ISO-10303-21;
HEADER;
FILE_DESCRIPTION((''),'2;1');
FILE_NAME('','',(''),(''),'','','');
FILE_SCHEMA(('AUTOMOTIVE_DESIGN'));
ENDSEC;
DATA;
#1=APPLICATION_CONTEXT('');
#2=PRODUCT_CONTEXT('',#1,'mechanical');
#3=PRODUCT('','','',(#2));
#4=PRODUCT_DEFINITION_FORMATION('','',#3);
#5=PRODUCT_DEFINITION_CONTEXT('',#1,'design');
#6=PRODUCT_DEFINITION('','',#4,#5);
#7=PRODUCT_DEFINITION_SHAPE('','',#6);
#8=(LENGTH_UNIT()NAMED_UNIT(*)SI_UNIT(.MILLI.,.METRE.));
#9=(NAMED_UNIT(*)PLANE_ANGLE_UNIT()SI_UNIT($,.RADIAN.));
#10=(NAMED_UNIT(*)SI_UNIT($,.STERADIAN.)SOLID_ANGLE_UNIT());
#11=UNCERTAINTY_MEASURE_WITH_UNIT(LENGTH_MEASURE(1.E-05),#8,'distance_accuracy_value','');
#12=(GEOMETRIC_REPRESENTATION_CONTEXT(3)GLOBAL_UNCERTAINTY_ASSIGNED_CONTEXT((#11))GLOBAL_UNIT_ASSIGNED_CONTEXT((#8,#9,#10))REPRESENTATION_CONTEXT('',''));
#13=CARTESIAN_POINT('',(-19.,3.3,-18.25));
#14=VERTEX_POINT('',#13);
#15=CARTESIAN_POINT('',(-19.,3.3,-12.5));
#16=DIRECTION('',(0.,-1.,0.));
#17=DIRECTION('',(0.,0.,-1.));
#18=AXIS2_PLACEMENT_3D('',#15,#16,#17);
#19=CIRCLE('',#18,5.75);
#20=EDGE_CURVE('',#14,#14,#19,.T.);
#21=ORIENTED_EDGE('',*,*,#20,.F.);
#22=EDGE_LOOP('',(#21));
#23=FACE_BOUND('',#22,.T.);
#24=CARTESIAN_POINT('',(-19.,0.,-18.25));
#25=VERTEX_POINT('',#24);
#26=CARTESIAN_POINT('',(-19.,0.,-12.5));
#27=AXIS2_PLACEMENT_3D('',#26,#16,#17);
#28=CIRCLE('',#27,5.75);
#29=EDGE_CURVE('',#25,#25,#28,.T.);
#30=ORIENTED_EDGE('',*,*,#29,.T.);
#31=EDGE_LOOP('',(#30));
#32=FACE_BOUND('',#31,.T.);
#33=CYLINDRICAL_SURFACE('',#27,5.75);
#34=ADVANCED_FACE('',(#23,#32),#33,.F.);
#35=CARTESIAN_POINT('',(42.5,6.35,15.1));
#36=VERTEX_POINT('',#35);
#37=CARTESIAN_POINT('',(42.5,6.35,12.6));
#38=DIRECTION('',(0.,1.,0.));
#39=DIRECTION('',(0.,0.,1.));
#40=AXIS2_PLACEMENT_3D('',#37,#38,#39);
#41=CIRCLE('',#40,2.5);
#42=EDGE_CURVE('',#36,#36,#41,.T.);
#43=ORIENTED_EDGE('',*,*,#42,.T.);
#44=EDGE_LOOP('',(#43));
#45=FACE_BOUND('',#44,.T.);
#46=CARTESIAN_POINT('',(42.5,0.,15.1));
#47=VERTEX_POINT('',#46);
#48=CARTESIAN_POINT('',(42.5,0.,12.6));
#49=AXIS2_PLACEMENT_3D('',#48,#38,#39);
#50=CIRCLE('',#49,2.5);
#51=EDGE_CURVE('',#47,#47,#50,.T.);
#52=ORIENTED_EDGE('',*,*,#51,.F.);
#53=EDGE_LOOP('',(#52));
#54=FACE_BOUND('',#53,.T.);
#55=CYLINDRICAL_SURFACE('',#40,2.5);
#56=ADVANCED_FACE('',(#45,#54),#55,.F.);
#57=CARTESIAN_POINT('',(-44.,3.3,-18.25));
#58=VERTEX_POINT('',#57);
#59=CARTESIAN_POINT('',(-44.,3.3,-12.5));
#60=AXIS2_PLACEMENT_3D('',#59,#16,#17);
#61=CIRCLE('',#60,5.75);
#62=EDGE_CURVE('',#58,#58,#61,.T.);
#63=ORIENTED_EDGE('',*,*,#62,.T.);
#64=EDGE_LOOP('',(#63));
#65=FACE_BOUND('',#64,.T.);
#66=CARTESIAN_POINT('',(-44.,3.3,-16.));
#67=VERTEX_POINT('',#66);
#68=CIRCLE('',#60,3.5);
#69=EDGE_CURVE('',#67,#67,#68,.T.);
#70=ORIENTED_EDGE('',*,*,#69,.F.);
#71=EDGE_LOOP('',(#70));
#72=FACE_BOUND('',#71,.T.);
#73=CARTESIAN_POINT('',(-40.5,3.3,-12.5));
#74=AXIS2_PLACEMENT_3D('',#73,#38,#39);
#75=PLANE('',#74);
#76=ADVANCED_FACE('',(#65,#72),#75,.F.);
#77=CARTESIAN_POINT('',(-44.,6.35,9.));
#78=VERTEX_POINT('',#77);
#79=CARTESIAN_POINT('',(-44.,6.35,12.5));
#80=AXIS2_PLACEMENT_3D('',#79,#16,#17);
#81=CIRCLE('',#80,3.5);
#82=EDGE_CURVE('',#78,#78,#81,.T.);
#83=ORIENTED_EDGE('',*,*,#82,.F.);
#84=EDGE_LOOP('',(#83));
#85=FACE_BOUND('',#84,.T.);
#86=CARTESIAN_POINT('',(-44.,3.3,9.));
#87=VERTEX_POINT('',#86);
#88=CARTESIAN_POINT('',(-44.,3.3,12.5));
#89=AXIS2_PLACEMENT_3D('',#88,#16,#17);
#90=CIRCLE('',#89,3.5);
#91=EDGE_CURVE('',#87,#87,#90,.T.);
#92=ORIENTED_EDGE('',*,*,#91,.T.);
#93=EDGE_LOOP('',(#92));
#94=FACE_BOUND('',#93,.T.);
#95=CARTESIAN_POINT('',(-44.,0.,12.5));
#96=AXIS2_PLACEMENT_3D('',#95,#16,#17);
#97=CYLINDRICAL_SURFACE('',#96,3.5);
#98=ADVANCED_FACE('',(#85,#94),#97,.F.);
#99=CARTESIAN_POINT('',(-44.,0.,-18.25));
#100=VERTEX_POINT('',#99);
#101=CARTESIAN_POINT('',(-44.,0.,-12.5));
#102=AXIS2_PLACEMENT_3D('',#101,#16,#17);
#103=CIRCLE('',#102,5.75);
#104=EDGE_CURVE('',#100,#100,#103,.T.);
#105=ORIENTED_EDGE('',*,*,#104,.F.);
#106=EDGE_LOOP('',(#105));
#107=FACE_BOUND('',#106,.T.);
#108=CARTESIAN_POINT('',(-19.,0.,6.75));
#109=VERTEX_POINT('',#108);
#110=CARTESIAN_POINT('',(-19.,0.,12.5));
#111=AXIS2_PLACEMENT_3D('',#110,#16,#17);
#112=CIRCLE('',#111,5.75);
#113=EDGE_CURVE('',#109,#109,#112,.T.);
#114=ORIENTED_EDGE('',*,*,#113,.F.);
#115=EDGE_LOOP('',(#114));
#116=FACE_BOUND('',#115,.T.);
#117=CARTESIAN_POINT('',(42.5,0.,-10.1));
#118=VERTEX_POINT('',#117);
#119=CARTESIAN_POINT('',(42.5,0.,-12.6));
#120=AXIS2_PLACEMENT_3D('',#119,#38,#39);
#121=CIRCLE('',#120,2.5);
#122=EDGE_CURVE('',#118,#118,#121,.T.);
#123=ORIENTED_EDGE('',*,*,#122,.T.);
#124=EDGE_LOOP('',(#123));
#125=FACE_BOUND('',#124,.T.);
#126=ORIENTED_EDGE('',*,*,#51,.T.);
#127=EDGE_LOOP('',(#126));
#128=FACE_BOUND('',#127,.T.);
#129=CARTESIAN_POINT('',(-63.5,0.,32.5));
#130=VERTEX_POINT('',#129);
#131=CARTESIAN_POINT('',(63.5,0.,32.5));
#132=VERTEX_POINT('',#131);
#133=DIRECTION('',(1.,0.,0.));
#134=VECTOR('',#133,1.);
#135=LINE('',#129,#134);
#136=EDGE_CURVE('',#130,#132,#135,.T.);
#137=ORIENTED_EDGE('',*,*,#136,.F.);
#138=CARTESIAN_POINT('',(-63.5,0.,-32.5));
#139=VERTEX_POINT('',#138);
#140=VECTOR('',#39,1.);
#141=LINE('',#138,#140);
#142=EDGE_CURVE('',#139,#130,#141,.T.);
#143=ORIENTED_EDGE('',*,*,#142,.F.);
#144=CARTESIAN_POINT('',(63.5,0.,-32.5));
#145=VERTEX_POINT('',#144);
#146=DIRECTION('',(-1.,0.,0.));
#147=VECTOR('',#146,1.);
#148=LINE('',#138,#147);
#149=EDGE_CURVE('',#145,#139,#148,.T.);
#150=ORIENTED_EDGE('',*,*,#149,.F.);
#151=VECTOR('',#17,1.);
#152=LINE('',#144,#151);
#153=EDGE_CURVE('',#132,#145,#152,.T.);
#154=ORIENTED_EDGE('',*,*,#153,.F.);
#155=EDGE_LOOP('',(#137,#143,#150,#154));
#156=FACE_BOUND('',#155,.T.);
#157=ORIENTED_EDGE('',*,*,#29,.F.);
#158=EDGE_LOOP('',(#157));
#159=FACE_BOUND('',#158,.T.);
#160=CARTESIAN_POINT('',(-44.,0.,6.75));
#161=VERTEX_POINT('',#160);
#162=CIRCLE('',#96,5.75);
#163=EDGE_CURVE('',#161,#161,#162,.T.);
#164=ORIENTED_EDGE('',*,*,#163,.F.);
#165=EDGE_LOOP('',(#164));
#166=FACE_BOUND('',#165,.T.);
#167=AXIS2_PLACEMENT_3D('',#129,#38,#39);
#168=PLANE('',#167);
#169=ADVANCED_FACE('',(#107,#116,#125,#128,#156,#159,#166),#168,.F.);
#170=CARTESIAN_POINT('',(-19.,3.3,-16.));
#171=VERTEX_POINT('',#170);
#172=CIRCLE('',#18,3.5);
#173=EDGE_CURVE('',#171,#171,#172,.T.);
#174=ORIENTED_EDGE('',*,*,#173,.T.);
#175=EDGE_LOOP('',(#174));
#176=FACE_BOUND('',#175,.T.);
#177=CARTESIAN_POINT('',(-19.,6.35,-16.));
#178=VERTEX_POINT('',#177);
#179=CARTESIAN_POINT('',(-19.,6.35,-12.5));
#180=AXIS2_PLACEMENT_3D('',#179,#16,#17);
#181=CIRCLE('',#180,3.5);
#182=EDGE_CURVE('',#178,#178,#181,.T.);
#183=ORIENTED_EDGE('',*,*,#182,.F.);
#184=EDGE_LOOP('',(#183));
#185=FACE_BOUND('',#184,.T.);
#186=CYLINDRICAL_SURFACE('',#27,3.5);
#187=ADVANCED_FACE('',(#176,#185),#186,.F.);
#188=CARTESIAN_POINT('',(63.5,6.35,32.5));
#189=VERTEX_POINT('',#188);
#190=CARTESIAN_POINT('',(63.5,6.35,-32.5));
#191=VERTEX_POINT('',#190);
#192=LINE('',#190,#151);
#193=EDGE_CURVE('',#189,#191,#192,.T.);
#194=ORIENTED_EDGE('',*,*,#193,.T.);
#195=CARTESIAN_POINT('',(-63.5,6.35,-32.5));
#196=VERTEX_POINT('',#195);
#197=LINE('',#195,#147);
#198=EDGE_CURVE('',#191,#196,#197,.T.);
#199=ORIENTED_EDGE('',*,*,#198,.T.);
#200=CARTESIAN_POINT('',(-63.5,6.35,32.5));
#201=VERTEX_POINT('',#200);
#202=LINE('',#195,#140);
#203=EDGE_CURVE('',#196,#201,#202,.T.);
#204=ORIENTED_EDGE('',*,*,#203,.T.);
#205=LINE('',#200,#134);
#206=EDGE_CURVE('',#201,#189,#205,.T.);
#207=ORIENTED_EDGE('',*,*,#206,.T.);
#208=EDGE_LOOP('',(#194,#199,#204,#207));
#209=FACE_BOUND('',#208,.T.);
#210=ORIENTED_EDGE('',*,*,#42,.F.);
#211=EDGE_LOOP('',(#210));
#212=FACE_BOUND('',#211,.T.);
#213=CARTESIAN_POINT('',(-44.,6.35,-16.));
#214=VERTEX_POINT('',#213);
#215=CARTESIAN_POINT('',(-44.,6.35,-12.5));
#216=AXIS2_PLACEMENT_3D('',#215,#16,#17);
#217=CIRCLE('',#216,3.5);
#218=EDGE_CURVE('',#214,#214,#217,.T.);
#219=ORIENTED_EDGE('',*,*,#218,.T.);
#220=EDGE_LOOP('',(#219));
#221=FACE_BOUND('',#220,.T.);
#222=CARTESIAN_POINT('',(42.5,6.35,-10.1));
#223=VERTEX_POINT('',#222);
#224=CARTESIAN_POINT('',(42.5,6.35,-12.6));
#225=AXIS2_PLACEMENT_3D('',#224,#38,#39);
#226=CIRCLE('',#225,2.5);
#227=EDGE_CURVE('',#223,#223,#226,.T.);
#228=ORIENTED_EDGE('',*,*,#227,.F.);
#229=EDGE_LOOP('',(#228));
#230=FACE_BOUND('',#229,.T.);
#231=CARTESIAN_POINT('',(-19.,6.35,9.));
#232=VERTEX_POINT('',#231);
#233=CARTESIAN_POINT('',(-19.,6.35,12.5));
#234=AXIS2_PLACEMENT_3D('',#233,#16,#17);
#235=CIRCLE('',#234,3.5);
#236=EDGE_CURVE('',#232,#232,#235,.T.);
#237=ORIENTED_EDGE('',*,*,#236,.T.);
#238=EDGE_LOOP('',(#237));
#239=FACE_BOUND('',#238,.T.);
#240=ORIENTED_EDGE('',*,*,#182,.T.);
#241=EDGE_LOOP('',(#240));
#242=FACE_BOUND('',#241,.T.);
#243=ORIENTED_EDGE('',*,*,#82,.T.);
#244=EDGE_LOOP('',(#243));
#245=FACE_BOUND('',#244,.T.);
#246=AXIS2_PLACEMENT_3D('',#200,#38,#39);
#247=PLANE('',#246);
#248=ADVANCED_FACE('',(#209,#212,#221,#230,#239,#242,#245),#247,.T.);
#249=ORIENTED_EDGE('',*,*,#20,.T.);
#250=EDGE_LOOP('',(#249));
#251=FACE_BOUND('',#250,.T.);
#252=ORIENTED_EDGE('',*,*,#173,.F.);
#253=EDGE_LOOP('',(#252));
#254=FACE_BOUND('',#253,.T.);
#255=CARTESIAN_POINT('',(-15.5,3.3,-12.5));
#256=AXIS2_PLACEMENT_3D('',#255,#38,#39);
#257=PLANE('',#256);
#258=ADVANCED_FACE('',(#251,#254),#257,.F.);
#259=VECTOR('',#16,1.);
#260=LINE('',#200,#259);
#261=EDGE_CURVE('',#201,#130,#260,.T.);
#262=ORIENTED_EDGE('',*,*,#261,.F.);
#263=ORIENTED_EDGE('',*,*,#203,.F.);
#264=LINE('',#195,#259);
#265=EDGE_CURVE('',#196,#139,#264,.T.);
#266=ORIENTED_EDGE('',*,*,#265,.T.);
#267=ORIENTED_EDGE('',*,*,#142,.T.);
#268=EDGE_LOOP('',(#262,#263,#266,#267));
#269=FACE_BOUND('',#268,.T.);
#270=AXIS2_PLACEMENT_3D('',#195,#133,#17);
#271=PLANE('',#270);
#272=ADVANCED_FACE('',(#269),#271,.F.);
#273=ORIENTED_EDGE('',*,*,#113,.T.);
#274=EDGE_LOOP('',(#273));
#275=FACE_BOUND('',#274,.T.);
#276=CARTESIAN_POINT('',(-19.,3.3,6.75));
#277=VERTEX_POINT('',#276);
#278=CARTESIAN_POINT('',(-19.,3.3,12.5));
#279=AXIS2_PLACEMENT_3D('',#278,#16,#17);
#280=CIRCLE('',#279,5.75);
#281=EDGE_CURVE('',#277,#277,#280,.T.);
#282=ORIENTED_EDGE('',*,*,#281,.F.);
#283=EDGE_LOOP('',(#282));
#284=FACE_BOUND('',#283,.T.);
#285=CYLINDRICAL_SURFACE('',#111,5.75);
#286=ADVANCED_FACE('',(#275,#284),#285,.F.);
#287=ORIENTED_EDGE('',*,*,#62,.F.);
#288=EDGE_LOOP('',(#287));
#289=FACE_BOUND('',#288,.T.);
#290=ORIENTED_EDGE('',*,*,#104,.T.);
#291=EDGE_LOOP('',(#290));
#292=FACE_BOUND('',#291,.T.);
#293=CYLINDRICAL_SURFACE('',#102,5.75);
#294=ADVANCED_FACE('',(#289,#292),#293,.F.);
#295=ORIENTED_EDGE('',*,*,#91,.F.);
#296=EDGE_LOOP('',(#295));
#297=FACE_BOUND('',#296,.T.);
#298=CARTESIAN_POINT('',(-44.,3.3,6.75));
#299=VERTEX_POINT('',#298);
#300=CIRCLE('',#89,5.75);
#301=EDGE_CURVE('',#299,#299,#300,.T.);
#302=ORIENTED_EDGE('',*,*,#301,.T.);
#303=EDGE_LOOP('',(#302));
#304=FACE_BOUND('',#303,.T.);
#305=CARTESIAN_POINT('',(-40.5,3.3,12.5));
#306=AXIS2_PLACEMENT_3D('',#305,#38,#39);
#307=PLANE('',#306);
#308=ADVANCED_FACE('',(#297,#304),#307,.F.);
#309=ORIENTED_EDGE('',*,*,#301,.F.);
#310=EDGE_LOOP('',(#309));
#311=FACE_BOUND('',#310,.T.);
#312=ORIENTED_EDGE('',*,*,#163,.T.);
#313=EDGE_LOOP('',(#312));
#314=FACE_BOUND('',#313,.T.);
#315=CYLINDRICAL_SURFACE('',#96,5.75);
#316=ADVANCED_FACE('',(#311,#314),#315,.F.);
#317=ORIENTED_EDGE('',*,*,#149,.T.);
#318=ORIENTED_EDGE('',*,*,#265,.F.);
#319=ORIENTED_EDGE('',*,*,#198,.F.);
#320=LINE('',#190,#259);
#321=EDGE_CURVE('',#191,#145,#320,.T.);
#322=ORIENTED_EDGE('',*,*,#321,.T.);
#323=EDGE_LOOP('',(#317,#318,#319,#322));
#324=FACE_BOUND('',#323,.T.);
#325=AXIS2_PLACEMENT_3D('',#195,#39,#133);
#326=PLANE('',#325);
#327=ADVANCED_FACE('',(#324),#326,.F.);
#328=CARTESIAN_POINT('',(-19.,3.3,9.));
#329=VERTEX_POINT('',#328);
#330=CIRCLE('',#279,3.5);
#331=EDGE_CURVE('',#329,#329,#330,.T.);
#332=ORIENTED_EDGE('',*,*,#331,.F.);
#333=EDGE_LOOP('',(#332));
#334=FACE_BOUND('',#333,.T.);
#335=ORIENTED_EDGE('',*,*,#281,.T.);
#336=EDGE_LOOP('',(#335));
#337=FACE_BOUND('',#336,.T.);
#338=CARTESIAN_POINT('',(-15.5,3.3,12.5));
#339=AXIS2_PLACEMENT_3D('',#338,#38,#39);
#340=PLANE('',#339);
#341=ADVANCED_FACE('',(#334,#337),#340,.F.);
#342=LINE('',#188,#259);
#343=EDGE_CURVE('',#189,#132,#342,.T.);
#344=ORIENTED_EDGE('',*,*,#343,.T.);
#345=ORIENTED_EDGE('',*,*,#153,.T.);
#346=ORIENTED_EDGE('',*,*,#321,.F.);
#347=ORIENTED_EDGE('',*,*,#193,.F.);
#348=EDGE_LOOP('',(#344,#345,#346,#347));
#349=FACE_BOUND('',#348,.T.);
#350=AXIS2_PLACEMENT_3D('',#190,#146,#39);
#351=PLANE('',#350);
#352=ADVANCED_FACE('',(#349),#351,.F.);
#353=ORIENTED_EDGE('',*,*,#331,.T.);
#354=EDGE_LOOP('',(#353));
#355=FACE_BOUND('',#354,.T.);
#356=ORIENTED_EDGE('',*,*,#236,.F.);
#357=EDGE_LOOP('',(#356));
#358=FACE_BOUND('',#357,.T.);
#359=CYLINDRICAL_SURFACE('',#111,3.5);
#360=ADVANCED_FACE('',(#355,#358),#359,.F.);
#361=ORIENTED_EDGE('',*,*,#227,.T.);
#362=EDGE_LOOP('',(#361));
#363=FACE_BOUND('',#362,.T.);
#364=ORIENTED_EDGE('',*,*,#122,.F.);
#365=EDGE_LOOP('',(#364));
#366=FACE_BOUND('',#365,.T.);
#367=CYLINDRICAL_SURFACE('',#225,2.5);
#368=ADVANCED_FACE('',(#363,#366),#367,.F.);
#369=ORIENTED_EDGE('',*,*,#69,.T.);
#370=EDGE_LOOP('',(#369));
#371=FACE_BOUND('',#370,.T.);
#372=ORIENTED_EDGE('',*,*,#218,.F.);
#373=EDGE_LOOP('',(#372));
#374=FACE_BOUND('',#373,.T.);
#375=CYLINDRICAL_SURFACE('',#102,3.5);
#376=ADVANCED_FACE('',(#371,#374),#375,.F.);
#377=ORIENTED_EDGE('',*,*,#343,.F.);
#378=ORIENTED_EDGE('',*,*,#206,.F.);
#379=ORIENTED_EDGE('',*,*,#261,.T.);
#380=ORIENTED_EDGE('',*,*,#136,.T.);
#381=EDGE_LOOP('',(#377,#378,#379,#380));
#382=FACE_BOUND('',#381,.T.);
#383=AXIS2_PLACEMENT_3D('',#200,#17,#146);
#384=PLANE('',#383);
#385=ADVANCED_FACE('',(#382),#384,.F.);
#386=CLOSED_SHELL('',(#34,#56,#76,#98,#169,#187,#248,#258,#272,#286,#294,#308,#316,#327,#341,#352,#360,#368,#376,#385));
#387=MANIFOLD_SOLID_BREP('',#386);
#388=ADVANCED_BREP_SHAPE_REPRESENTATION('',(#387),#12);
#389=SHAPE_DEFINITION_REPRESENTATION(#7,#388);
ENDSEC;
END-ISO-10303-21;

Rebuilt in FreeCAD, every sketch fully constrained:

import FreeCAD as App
import Part
import Sketcher
from FreeCAD import Vector
Q = App.Units.Quantity


def add_polygon(sketch, points):
    """Adds a closed chain of lines whose ends are joined by coincident constraints."""
    first, n = sketch.GeometryCount, len(points)
    for a, b in zip(points, points[1:] + points[:1]):
        sketch.addGeometry(Part.LineSegment(App.Vector(*a, 0), App.Vector(*b, 0)), False)
    for i in range(n):
        sketch.addConstraint(Sketcher.Constraint("Coincident", first + i, 2, first + (i + 1) % n, 1))

doc = App.newDocument("Part")
body = doc.addObject("PartDesign::Body", "Body")

# Sketch on XZ plane
sketch1 = body.newObject("Sketcher::SketchObject", "Sketch")
sketch1.AttachmentSupport = (doc.getObject("XZ_Plane"), [""])
sketch1.MapMode = "FlatFace"
add_polygon(sketch1, [(-64, -32), (-64, 32), (64, 32), (64, -32)])  # lines 0-3
sketch1.addConstraint([
    Sketcher.Constraint("Vertical", 0),
    Sketcher.Constraint("Horizontal", 1),
    Sketcher.Constraint("Vertical", 2),
    Sketcher.Constraint("Horizontal", 3),
    Sketcher.Constraint("Symmetric", 0, 2, 2, 2, -1, 1),
    Sketcher.Constraint("DistanceX", 1, 1, 1, 2, Q("127 mm")),
    Sketcher.Constraint("DistanceY", 0, 1, 0, 2, Q("65 mm")),
])
pad1 = body.newObject("PartDesign::Pad", "Pad")
pad1.Profile = sketch1
pad1.Length = 6.35
pad1.Reversed = True

# Sketch on XZ plane
sketch2 = body.newObject("Sketcher::SketchObject", "Sketch001")
sketch2.AttachmentSupport = (doc.getObject("XZ_Plane"), [""])
sketch2.MapMode = "FlatFace"
sketch2.AttachmentOffset = App.Placement(Vector(0, 0, -6.35), App.Rotation())
sketch2.addGeometry([
    Part.Circle(Vector(42.5, -12.6, 0), Vector(0, 0, 1), 2.5),
    Part.Circle(Vector(42.5, 12.6, 0), Vector(0, 0, 1), 2.5),
], False)
sketch2.addConstraint([
    Sketcher.Constraint("Equal", 0, 1),
    Sketcher.Constraint("Symmetric", 0, 3, 1, 3, -1),
    Sketcher.Constraint("Diameter", 0, Q("5 mm")),
    Sketcher.Constraint("DistanceX", -1, 1, 0, 3, Q("42.5 mm")),
    Sketcher.Constraint("DistanceY", 0, 3, -1, 1, Q("12.6 mm")),
])
doc.recompute()
hole = body.newObject("PartDesign::Hole", "Hole")
hole.Profile = sketch2
hole.ThreadType = "None"
hole.Diameter = 5
hole.DepthType = "ThroughAll"
hole.Reversed = True

# Sketch on XZ plane
sketch3 = body.newObject("Sketcher::SketchObject", "Sketch002")
sketch3.AttachmentSupport = (doc.getObject("XZ_Plane"), [""])
sketch3.MapMode = "FlatFace"
sketch3.addGeometry([
    Part.Circle(Vector(-44, 12.5, 0), Vector(0, 0, 1), 3.5),
    Part.Circle(Vector(-19, 12.5, 0), Vector(0, 0, 1), 3.5),
    Part.Circle(Vector(-19, -12.5, 0), Vector(0, 0, 1), 3.5),
    Part.Circle(Vector(-44, -12.5, 0), Vector(0, 0, 1), 3.5),
], False)
sketch3.addConstraint([
    Sketcher.Constraint("Equal", 0, 1),
    Sketcher.Constraint("Equal", 1, 2),
    Sketcher.Constraint("Equal", 2, 3),
    Sketcher.Constraint("Symmetric", 1, 3, 2, 3, -1),
    Sketcher.Constraint("Symmetric", 0, 3, 3, 3, -1),
    Sketcher.Constraint("Horizontal", 0, 3, 1, 3),
    Sketcher.Constraint("Diameter", 0, Q("7 mm")),
    Sketcher.Constraint("DistanceX", 0, 3, -1, 1, Q("44 mm")),
    Sketcher.Constraint("DistanceX", 1, 3, -1, 1, Q("19 mm")),
    Sketcher.Constraint("DistanceY", 2, 3, 1, 3, Q("25 mm")),
])
doc.recompute()
hole2 = body.newObject("PartDesign::Hole", "Hole001")
hole2.Profile = sketch3
hole2.ThreadType = "None"
hole2.Diameter = 7
hole2.DepthType = "ThroughAll"
hole2.HoleCutType = "Counterbore"
hole2.HoleCutDiameter = 11.5
hole2.HoleCutDepth = 3.3

doc.recompute()
